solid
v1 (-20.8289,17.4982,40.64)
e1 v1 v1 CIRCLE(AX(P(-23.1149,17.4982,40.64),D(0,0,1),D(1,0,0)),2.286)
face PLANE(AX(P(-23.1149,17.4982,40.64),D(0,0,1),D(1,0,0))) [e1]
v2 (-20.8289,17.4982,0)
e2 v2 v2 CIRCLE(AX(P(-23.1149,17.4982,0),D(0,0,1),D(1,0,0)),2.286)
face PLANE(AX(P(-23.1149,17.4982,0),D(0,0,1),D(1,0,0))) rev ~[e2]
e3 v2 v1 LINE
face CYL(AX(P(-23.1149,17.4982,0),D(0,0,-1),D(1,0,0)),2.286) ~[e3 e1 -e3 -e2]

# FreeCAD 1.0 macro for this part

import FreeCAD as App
import Part
import Sketcher
Q = App.Units.Quantity

doc = App.newDocument("Part")
body = doc.addObject("PartDesign::Body", "Body")

# Sketch on XY plane
sketch1 = body.newObject("Sketcher::SketchObject", "Sketch")
sketch1.AttachmentSupport = (doc.getObject("XY_Plane"), [""])
sketch1.MapMode = "FlatFace"
sketch1.addGeometry(Part.Circle(App.Vector(-23.1, 17.5, 0), App.Vector(0, 0, 1), 2.3), False)
sketch1.addConstraint(Sketcher.Constraint("Diameter", 0, Q("0.18 in")))
sketch1.addConstraint(Sketcher.Constraint("DistanceY", -1, 1, 0, 3, Q("0.6889 in")))
sketch1.addConstraint(Sketcher.Constraint("DistanceX", 0, 3, -1, 1, Q("23.115 mm")))
pad1 = body.newObject("PartDesign::Pad", "Pad")
pad1.Profile = sketch1
pad1.Length = Q("1.6 in")

doc.recompute()
